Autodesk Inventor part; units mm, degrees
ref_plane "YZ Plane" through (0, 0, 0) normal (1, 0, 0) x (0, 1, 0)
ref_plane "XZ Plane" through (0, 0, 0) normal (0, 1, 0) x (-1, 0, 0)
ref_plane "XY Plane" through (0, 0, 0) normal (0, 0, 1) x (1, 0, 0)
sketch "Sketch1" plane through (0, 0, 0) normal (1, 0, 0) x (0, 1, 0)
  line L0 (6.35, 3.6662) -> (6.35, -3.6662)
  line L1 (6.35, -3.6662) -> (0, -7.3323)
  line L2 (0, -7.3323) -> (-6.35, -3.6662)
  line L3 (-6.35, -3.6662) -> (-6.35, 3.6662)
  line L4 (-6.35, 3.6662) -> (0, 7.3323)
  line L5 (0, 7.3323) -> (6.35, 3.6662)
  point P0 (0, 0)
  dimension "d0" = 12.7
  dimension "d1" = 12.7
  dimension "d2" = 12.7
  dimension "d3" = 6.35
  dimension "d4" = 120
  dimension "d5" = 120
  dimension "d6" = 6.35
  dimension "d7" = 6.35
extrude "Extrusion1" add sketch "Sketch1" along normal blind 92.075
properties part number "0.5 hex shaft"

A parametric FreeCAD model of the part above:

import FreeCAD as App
import Part
import Sketcher
Q = App.Units.Quantity

doc = App.newDocument("Part")
params = doc.addObject("Spreadsheet::Sheet", "Params")
for row, (alias, value) in enumerate([
    ("pad1_length", "3.625 in"),
], start=1):
    params.set(f"A{row}", alias)
    params.set(f"B{row}", "=" + value)
    params.setAlias(f"B{row}", alias)

body = doc.addObject("PartDesign::Body", "Body")

# Sketch on YZ plane
sketch1 = body.newObject("Sketcher::SketchObject", "Sketch")
sketch1.AttachmentSupport = (doc.getObject("YZ_Plane"), [""])
sketch1.MapMode = "FlatFace"
sketch1.addGeometry([
    Part.LineSegment(App.Vector(6, -4, 0), App.Vector(6, 4, 0)),  # 0
    Part.LineSegment(App.Vector(6, 4, 0), App.Vector(0, 7, 0)),  # 1
    Part.LineSegment(App.Vector(0, 7, 0), App.Vector(-6, 4, 0)),  # 2
    Part.LineSegment(App.Vector(-6, 4, 0), App.Vector(-6, -4, 0)),  # 3
    Part.LineSegment(App.Vector(-6, -4, 0), App.Vector(0, -7, 0)),  # 4
    Part.LineSegment(App.Vector(0, -7, 0), App.Vector(6, -4, 0)),  # 5
], False)
sketch1.addConstraint([
    Sketcher.Constraint("Coincident", 0, 2, 1, 1),
    Sketcher.Constraint("Coincident", 1, 2, 2, 1),
    Sketcher.Constraint("Coincident", 2, 2, 3, 1),
    Sketcher.Constraint("Coincident", 3, 2, 4, 1),
    Sketcher.Constraint("Coincident", 4, 2, 5, 1),
    Sketcher.Constraint("Coincident", 5, 2, 0, 1),
    Sketcher.Constraint("Vertical", 0),
    Sketcher.Constraint("Vertical", 3),
    Sketcher.Constraint("Symmetric", 0, 2, 3, 2, -1, 1),
    Sketcher.Constraint("Symmetric", 1, 2, 4, 2, -1, 1),
    Sketcher.Constraint("PointOnObject", 1, 2, -2),
    Sketcher.Constraint("Parallel", 2, 5),
    Sketcher.Constraint("Horizontal", 0, 2, 2, 2),
    Sketcher.Constraint("DistanceX", 2, 2, 0, 2, Q("0.5 in")),
    Sketcher.Constraint("Angle", 1, Q("150.0005 deg")),
    Sketcher.Constraint("DistanceY", 3, 2, 1, 2, Q("0.433 in")),
])
pad1 = body.newObject("PartDesign::Pad", "Pad")
pad1.Profile = sketch1
pad1.setExpression("Length", "Params.pad1_length")

doc.recompute()
